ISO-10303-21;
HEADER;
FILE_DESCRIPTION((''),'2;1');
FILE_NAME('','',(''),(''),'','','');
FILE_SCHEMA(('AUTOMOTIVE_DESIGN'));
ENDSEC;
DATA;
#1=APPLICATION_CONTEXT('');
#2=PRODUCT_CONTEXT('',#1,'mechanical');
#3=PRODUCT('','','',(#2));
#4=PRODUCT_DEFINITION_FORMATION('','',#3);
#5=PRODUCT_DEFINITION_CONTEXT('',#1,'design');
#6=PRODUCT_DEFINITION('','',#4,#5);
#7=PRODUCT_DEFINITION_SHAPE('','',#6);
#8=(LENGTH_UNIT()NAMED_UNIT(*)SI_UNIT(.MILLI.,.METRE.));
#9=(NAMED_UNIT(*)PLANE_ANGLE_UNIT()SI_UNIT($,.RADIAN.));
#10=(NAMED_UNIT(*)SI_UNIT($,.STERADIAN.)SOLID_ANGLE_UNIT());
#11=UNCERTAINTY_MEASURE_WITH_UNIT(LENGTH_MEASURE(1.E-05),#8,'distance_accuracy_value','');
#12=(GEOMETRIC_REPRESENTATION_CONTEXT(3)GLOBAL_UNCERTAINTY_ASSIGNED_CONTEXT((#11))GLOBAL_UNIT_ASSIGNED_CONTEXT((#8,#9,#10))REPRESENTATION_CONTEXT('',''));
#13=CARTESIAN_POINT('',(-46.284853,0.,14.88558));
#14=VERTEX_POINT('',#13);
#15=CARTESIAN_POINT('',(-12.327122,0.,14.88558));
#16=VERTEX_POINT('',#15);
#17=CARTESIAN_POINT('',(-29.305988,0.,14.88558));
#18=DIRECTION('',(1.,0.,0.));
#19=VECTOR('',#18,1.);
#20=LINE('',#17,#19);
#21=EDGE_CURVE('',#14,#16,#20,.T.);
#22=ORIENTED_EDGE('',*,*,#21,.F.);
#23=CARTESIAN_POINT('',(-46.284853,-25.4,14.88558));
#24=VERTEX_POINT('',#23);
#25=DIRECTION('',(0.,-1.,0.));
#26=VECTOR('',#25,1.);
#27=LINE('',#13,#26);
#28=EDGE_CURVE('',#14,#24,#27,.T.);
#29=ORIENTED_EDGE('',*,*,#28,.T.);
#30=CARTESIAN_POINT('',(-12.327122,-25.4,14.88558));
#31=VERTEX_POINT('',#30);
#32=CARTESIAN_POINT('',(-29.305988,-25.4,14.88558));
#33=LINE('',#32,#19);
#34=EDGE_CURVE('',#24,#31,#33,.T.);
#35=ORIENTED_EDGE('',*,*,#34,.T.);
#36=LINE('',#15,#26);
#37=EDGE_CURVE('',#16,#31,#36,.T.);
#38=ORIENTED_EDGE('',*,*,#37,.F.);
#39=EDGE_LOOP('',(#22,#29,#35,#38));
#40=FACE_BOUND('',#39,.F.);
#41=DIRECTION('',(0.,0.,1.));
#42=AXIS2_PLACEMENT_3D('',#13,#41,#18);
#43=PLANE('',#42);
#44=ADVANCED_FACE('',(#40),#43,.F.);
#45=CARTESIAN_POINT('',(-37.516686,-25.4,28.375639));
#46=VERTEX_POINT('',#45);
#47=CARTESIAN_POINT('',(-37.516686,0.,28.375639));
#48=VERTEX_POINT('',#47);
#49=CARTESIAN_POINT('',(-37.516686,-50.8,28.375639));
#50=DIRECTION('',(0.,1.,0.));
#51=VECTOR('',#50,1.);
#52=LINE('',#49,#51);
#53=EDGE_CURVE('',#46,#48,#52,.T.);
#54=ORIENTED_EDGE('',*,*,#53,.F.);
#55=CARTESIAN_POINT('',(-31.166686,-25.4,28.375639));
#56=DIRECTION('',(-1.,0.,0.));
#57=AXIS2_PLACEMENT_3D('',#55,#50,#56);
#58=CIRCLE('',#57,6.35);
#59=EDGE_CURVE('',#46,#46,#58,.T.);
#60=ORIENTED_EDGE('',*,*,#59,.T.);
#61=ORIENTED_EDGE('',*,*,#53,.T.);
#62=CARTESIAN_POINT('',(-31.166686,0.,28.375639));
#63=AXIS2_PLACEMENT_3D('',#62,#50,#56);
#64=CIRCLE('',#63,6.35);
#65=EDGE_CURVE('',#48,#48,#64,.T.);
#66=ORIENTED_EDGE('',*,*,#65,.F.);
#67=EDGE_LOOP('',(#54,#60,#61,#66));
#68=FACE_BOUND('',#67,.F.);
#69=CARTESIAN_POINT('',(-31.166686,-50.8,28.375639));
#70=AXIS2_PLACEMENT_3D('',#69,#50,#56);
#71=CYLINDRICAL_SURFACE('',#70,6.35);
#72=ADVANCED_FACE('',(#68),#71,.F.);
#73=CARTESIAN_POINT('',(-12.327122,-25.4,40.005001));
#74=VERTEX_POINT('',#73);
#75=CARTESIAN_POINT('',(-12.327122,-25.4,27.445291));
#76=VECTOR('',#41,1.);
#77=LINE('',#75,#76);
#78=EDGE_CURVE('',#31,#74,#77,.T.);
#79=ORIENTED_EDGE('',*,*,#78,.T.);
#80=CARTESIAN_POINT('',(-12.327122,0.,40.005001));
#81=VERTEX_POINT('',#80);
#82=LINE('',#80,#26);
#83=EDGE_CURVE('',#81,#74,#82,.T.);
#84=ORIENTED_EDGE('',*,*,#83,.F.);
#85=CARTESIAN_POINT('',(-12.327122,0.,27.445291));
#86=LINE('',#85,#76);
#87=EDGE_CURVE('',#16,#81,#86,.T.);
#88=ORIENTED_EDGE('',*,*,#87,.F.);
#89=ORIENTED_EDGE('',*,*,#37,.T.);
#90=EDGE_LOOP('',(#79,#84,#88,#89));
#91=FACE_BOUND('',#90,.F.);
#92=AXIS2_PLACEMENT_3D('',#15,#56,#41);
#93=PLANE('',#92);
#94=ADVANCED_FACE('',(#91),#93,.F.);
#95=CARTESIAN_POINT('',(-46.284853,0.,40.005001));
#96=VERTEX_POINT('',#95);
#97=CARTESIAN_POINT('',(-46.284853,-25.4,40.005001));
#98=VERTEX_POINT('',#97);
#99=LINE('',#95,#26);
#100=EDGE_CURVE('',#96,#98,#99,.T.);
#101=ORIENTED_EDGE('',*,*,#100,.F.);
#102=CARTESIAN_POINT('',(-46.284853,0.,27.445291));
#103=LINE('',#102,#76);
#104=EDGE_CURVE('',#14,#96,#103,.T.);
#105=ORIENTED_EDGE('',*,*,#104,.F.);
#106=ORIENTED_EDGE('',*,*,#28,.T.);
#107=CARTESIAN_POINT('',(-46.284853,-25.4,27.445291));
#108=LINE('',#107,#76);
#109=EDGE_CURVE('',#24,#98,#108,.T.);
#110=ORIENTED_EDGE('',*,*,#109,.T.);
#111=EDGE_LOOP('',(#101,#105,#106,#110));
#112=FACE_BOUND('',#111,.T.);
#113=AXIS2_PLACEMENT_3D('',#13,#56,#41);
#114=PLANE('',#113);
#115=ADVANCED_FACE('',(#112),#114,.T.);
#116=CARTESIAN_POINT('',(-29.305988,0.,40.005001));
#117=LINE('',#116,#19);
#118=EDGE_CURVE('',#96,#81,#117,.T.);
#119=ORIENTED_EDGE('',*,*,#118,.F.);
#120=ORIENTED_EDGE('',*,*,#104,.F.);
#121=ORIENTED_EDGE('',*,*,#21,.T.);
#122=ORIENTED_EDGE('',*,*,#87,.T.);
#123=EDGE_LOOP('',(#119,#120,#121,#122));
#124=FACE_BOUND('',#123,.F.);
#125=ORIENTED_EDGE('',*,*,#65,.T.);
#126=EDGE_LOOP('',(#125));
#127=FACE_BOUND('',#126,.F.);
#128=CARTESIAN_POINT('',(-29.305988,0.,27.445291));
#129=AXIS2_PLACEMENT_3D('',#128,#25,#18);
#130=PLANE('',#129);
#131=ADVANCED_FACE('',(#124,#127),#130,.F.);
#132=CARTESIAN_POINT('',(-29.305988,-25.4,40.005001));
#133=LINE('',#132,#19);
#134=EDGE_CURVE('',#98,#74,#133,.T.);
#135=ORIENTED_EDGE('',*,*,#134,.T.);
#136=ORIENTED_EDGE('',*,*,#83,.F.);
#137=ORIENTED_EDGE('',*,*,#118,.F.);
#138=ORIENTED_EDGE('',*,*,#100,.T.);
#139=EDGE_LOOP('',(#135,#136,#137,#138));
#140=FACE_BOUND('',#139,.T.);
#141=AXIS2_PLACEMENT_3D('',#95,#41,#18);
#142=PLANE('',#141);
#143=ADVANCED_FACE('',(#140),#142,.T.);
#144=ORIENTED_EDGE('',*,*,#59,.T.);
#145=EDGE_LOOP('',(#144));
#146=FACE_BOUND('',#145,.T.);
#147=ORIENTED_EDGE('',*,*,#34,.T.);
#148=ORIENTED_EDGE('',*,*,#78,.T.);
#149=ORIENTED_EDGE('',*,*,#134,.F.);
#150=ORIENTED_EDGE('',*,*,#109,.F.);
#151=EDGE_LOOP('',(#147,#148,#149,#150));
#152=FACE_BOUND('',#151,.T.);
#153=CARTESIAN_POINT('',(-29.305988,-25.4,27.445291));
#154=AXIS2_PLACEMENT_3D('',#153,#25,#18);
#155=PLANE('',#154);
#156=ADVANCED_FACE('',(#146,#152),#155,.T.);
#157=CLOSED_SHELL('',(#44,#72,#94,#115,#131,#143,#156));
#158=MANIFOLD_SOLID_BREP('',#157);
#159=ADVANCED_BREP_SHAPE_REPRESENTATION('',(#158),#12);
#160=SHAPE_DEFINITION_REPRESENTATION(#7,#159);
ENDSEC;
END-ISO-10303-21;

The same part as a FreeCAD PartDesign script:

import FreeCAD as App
import Part
import Sketcher
Q = App.Units.Quantity

doc = App.newDocument("Part")
body = doc.addObject("PartDesign::Body", "Body")

# Sketch on XZ plane
sketch1 = body.newObject("Sketcher::SketchObject", "Sketch")
sketch1.AttachmentSupport = (doc.getObject("XZ_Plane"), [""])
sketch1.MapMode = "FlatFace"
sketch1.addGeometry(Part.LineSegment(App.Vector(-46.284853, 40.005001, 0), App.Vector(-46.284853, 14.88558, 0)), False)
sketch1.addGeometry(Part.LineSegment(App.Vector(-46.284853, 14.88558, 0), App.Vector(-12.327122, 14.88558, 0)), False)
sketch1.addGeometry(Part.LineSegment(App.Vector(-12.327122, 14.88558, 0), App.Vector(-12.327122, 40.005001, 0)), False)
sketch1.addGeometry(Part.LineSegment(App.Vector(-12.327122, 40.005001, 0), App.Vector(-46.284853, 40.005001, 0)), False)
sketch1.addConstraint(Sketcher.Constraint("Coincident", 0, 2, 1, 1))
sketch1.addConstraint(Sketcher.Constraint("Coincident", 1, 2, 2, 1))
sketch1.addConstraint(Sketcher.Constraint("Coincident", 2, 2, 3, 1))
sketch1.addConstraint(Sketcher.Constraint("Coincident", 3, 2, 0, 1))
sketch1.addConstraint(Sketcher.Constraint("Vertical", 0))
sketch1.addConstraint(Sketcher.Constraint("Horizontal", 1))
sketch1.addConstraint(Sketcher.Constraint("Vertical", 2))
sketch1.addConstraint(Sketcher.Constraint("Horizontal", 3))
sketch1.addConstraint(Sketcher.Constraint("DistanceY", -1, 1, 2, 2, Q("1.5750001 in")))
sketch1.addConstraint(Sketcher.Constraint("DistanceX", 1, 1, 1, 2, Q("33.957731 mm")))
sketch1.addConstraint(Sketcher.Constraint("DistanceY", 0, 2, 0, 1, Q("25.119421 mm")))
sketch1.addConstraint(Sketcher.Constraint("DistanceX", 0, 2, -1, 1, Q("46.284853 mm")))
pad1 = body.newObject("PartDesign::Pad", "Pad")
pad1.Profile = sketch1
pad1.Length = Q("1 in")

# Sketch on XZ plane
sketch2 = body.newObject("Sketcher::SketchObject", "Sketch001")
sketch2.AttachmentSupport = (doc.getObject("XZ_Plane"), [""])
sketch2.MapMode = "FlatFace"
sketch2.AttachmentOffset = App.Placement(App.Vector(0, 0, 1 * 25.4), App.Rotation())
sketch2.addGeometry(Part.Circle(App.Vector(-31.166686, 28.375639, 0), App.Vector(0, 0, 1), 6.35), False)
sketch2.addConstraint(Sketcher.Constraint("Diameter", 0, Q("0.5 in")))
sketch2.addConstraint(Sketcher.Constraint("DistanceY", -1, 1, 0, 3, Q("28.375639 mm")))
sketch2.addConstraint(Sketcher.Constraint("DistanceX", 0, 3, -1, 1, Q("31.166686 mm")))
doc.recompute()
hole = body.newObject("PartDesign::Hole", "Hole")
hole.Profile = sketch2
hole.ThreadType = "None"
hole.Diameter = Q("0.5 in")
hole.DepthType = "Dimension"
hole.Depth = Q("1 in")
hole.DrillPoint = "Flat"

doc.recompute()
